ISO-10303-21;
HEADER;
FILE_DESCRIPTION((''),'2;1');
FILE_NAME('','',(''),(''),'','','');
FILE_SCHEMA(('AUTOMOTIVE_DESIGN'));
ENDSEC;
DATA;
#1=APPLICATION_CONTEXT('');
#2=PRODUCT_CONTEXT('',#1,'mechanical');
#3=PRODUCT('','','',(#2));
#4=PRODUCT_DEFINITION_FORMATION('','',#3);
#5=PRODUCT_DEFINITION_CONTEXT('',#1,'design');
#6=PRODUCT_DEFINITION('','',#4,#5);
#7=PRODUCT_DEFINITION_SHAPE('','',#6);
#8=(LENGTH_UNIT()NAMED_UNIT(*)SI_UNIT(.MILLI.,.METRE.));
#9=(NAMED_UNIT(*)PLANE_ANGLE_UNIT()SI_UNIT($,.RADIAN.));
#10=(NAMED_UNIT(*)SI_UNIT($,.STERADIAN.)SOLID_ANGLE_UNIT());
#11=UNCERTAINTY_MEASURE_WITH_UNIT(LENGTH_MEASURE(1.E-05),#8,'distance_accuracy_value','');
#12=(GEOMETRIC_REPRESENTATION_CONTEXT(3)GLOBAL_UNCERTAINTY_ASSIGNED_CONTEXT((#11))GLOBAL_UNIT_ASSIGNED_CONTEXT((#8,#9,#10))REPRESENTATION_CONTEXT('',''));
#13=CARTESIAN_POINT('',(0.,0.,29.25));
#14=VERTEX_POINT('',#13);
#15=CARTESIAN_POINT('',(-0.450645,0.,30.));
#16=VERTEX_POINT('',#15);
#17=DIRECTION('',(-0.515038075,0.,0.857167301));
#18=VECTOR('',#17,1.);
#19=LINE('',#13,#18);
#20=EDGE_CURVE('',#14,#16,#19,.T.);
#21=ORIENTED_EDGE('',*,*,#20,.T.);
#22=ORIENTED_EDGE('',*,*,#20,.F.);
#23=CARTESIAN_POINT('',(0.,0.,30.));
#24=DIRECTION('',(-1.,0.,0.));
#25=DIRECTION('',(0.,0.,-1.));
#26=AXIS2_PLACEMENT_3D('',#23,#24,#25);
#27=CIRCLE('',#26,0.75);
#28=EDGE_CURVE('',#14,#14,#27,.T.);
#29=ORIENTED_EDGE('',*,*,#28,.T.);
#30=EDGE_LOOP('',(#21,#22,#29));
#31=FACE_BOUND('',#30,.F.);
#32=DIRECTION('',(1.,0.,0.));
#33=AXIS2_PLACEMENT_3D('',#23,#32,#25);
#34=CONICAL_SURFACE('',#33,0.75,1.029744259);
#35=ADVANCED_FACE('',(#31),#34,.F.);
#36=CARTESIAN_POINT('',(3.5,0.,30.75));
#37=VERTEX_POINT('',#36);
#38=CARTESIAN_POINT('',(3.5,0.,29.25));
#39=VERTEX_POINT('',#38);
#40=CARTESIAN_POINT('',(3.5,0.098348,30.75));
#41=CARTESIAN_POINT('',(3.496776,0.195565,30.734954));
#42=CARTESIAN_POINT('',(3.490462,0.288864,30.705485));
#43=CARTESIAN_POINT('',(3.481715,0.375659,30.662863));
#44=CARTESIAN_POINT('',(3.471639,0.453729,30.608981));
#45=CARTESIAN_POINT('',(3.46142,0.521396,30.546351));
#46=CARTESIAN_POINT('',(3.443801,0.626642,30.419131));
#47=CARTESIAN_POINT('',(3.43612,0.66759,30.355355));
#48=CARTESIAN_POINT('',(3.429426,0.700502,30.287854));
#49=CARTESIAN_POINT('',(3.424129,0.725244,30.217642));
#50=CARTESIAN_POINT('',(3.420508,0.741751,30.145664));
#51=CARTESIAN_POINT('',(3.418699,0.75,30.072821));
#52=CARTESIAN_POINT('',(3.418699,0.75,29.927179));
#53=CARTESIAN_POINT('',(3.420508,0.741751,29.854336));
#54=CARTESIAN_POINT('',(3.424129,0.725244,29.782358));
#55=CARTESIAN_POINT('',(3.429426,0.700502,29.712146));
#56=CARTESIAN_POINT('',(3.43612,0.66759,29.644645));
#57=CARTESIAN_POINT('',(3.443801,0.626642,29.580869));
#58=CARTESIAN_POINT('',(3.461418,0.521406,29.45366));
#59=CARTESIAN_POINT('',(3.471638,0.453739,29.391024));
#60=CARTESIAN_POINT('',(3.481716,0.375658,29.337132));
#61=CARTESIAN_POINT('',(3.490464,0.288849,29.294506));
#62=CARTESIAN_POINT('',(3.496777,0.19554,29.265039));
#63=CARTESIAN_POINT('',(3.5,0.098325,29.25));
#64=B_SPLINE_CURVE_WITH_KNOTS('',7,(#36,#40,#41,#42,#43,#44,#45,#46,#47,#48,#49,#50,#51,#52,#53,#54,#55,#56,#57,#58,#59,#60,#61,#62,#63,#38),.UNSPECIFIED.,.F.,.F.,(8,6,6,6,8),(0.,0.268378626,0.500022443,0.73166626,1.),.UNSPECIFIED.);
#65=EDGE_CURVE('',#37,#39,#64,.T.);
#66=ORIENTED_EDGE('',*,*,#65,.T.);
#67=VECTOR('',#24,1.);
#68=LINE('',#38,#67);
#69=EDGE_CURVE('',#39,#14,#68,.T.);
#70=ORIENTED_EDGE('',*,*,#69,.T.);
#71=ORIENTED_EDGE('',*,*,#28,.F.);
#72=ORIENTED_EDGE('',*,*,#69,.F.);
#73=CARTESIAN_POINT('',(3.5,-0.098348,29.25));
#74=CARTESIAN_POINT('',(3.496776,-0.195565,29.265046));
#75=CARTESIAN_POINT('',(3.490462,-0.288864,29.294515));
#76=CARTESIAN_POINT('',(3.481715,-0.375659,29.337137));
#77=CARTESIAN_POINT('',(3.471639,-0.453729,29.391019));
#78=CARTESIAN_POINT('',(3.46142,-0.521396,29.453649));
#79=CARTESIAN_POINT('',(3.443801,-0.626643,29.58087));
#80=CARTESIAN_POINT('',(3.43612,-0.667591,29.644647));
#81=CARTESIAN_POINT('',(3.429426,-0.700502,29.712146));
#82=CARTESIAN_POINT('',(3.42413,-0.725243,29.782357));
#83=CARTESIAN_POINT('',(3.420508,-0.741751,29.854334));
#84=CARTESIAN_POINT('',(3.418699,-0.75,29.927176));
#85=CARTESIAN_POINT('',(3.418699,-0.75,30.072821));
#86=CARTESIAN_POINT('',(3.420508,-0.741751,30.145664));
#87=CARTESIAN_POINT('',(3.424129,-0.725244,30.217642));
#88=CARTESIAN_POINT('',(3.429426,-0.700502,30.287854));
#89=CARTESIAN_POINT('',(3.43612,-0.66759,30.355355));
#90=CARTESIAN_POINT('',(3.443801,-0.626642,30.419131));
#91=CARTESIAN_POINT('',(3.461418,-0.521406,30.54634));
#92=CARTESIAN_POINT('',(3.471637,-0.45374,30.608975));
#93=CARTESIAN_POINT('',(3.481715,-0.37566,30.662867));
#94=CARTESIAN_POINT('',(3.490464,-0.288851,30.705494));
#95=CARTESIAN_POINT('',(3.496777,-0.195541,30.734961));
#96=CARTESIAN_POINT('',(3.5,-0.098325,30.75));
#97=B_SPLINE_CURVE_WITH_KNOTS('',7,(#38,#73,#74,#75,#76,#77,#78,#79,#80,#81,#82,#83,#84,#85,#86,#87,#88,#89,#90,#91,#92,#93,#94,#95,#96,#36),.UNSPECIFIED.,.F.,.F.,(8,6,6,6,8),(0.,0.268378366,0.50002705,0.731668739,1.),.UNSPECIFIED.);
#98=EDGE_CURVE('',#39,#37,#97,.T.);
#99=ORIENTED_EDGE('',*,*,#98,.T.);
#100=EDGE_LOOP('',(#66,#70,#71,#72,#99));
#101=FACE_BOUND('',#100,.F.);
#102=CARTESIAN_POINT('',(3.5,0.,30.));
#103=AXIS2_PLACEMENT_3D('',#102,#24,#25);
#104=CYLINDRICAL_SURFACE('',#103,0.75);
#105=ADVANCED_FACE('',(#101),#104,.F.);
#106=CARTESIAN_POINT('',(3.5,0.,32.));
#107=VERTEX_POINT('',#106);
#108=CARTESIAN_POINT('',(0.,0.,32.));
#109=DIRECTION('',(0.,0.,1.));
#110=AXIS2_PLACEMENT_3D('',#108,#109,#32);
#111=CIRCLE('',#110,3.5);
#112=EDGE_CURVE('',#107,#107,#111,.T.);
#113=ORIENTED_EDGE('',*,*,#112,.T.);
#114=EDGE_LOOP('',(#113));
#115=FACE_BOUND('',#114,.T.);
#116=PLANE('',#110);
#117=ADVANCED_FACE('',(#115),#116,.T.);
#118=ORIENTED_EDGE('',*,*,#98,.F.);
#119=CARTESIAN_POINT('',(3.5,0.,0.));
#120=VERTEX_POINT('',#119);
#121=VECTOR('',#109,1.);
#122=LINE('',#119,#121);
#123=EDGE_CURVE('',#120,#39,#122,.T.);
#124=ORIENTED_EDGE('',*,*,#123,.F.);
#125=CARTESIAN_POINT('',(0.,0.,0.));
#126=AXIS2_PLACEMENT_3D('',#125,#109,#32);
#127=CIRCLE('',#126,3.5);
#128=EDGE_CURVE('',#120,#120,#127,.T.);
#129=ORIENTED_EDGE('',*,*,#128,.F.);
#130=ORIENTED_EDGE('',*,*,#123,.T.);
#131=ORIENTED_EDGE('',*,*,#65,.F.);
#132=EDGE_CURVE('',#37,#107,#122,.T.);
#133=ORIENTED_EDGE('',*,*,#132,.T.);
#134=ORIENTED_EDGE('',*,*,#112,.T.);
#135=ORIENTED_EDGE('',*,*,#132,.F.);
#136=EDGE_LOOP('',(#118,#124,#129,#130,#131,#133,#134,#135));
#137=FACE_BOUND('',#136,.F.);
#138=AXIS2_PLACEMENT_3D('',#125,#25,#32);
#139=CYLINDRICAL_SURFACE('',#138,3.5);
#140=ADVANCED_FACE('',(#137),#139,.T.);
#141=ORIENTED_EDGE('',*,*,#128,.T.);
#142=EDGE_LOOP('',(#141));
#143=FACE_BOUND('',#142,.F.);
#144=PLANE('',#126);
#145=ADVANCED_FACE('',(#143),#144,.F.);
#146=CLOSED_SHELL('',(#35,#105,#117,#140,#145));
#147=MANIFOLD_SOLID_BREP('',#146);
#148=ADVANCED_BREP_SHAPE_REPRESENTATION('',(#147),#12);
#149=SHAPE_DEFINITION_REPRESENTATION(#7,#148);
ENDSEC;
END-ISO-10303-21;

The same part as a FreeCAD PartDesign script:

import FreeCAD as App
import Part
import Sketcher
from FreeCAD import Vector
Q = App.Units.Quantity

doc = App.newDocument("Part")
params = doc.addObject("Spreadsheet::Sheet", "Params")
for row, (alias, value) in enumerate([
    ("sketch1_diameter", "7 mm"),
    ("pad1_length", "32 mm"),
    ("sketch2_diameter", "1.5 mm"),
    ("hole_diameter", "1.5 mm"),
    ("hole_depth", "3.5 mm"),
], start=1):
    params.set(f"A{row}", alias)
    params.set(f"B{row}", "=" + value)
    params.setAlias(f"B{row}", alias)

body = doc.addObject("PartDesign::Body", "Body")

# Sketch on XY plane
sketch1 = doc.addObject("Sketcher::SketchObject", "Sketch")
body.addObject(sketch1)
sketch1.AttachmentSupport = (doc.XY_Plane, [""])
sketch1.MapMode = "FlatFace"
sketch1.addGeometry(Part.Circle(Vector(0, 0, 0), Vector(0, 0, 1), 3.5), False)
sketch1.addConstraint([
    Sketcher.Constraint("Coincident", 0, 3, -1, 1),
    Sketcher.Constraint("Diameter", 0, Q("7 mm")),
])
sketch1.setExpression("Constraints[1]", "Params.sketch1_diameter")
pad1 = doc.addObject("PartDesign::Pad", "Pad")
body.addObject(pad1)
pad1.Profile = sketch1
pad1.setExpression("Length", "Params.pad1_length")

# Sketch on YZ plane
sketch2 = doc.addObject("Sketcher::SketchObject", "Sketch001")
body.addObject(sketch2)
sketch2.AttachmentSupport = (doc.YZ_Plane, [""])
sketch2.MapMode = "FlatFace"
sketch2.AttachmentOffset = App.Placement(Vector(0, 0, 3.5), App.Rotation())
sketch2.addGeometry(Part.Circle(Vector(0, 30, 0), Vector(0, 0, 1), 0.75), False)
sketch2.addConstraint([
    Sketcher.Constraint("PointOnObject", 0, 3, -2),
    Sketcher.Constraint("Diameter", 0, Q("1.5 mm")),
    Sketcher.Constraint("DistanceY", -1, 1, 0, 3, Q("30 mm")),
])
sketch2.setExpression("Constraints[1]", "Params.sketch2_diameter")
doc.recompute()
hole = doc.addObject("PartDesign::Hole", "Hole")
body.addObject(hole)
hole.Profile = sketch2
hole.ThreadType = "None"
hole.setExpression("Diameter", "Params.hole_diameter")
hole.DepthType = "Dimension"
hole.setExpression("Depth", "Params.hole_depth")
hole.DrillPoint = "Angled"
hole.DrillPointAngle = 118

doc.recompute()
